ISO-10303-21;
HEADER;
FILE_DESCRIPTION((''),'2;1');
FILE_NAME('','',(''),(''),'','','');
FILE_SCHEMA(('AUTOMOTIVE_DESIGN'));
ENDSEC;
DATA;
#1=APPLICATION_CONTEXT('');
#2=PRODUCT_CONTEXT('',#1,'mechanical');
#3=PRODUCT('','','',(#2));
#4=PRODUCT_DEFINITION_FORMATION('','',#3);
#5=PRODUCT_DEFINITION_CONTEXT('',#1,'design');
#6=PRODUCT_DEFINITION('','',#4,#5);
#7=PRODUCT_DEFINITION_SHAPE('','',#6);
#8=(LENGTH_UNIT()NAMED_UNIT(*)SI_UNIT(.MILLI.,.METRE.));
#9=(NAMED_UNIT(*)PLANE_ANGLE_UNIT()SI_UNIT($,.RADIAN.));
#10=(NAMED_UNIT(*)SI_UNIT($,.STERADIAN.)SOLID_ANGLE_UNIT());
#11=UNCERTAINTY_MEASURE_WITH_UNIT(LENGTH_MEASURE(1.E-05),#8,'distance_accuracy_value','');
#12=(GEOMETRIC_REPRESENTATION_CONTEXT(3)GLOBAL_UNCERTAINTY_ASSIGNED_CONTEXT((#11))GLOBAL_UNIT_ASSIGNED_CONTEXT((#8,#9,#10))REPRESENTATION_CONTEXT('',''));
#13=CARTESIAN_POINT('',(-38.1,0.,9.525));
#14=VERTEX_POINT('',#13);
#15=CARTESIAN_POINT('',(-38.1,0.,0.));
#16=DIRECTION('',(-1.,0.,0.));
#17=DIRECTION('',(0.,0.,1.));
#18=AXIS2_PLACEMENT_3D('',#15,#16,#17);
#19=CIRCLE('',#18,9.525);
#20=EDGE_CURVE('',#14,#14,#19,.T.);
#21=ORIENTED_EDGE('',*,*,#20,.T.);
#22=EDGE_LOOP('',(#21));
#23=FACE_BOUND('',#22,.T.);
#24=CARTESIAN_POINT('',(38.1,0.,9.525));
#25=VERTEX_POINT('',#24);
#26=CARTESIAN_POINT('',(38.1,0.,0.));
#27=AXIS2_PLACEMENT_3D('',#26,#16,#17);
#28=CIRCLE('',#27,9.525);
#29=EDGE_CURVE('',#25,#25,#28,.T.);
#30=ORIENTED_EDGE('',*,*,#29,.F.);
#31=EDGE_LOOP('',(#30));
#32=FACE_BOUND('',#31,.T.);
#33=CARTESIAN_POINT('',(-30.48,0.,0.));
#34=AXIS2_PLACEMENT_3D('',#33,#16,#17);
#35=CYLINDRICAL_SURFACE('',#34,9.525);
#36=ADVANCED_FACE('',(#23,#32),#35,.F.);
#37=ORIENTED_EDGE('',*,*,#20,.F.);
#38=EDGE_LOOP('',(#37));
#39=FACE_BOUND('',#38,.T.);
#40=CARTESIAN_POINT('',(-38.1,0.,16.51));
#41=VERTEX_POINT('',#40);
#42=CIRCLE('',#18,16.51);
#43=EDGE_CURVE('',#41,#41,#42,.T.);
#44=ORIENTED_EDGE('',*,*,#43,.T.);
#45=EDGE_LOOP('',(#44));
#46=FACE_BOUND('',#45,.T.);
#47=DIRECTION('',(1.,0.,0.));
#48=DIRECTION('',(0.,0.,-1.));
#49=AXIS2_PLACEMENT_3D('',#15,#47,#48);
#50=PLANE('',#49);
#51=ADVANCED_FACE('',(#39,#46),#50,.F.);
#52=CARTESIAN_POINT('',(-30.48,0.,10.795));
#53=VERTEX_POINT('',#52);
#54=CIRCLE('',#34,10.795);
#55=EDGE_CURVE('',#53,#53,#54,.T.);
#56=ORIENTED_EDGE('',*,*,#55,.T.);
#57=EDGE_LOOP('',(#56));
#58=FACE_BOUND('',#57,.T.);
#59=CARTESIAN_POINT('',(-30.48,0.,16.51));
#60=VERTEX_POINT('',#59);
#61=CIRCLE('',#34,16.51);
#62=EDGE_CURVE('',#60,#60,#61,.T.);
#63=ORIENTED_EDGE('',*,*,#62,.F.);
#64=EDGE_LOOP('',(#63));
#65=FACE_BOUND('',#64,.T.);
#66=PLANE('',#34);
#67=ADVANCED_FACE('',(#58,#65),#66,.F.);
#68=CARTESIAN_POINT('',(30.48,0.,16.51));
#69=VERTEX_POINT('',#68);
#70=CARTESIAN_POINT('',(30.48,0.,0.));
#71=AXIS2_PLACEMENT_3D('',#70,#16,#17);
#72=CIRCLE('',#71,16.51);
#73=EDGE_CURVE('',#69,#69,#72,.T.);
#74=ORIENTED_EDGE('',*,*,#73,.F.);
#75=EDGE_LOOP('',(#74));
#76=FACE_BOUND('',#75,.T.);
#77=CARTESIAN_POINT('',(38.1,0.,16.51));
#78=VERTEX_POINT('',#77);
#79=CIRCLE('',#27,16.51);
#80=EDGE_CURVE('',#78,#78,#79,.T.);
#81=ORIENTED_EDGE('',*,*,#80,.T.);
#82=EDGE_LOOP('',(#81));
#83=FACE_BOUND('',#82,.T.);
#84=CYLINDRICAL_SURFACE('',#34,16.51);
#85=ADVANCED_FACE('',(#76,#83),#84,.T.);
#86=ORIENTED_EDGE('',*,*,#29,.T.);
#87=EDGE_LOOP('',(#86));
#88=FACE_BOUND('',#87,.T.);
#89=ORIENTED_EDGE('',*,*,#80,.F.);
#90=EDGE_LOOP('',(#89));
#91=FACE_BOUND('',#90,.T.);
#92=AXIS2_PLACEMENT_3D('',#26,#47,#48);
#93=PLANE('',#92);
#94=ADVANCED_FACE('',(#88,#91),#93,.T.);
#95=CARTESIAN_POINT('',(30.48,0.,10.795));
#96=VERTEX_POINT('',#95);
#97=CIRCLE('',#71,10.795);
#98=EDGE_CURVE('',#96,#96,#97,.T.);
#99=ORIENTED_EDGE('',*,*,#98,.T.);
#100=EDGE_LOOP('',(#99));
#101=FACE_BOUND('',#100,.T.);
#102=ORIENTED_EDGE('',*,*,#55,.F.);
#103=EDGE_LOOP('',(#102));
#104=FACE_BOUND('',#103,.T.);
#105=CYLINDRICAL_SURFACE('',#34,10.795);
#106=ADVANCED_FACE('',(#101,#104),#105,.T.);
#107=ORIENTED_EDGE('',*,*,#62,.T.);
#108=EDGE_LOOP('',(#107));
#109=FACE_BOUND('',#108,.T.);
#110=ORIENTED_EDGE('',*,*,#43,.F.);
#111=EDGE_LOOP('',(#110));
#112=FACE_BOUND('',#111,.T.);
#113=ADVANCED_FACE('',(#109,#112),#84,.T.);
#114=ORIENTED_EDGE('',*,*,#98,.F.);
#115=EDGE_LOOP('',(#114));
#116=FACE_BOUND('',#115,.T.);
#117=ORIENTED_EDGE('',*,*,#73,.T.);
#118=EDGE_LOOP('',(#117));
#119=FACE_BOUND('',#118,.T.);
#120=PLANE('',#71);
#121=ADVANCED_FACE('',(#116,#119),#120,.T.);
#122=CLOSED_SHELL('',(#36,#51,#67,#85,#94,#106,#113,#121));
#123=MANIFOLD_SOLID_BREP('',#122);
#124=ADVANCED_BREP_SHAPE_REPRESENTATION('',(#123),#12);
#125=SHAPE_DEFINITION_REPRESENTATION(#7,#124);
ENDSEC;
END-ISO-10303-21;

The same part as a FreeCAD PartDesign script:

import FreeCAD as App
import Part
import Sketcher

V = App.Vector
Q = App.Units.Quantity

doc = App.newDocument("Part")
body = doc.addObject("PartDesign::Body", "Body")

# Sketch on XY plane
sketch1 = doc.addObject("Sketcher::SketchObject", "Sketch")
body.addObject(sketch1)
sketch1.AttachmentSupport = (doc.XY_Plane, [""])
sketch1.MapMode = "FlatFace"
sketch1.addGeometry([
    Part.LineSegment(V(30, 11, 0), V(-30, 11, 0)),  # 0
    Part.LineSegment(V(-30, 11, 0), V(-30, 17, 0)),  # 1
    Part.LineSegment(V(-30, 17, 0), V(-38, 17, 0)),  # 2
    Part.LineSegment(V(-38, 17, 0), V(-38, 10, 0)),  # 3
    Part.LineSegment(V(-38, 10, 0), V(38, 10, 0)),  # 4
    Part.LineSegment(V(38, 10, 0), V(38, 17, 0)),  # 5
    Part.LineSegment(V(38, 17, 0), V(30, 17, 0)),  # 6
    Part.LineSegment(V(30, 17, 0), V(30, 11, 0)),  # 7
], False)
sketch1.addConstraint([
    Sketcher.Constraint("Coincident", 0, 2, 1, 1),
    Sketcher.Constraint("Coincident", 1, 2, 2, 1),
    Sketcher.Constraint("Coincident", 2, 2, 3, 1),
    Sketcher.Constraint("Coincident", 3, 2, 4, 1),
    Sketcher.Constraint("Coincident", 4, 2, 5, 1),
    Sketcher.Constraint("Coincident", 5, 2, 6, 1),
    Sketcher.Constraint("Coincident", 6, 2, 7, 1),
    Sketcher.Constraint("Coincident", 7, 2, 0, 1),
    Sketcher.Constraint("Horizontal", 0),
    Sketcher.Constraint("Vertical", 1),
    Sketcher.Constraint("Horizontal", 2),
    Sketcher.Constraint("Vertical", 3),
    Sketcher.Constraint("Horizontal", 4),
    Sketcher.Constraint("Vertical", 5),
    Sketcher.Constraint("Horizontal", 6),
    Sketcher.Constraint("Vertical", 7),
    Sketcher.Constraint("Symmetric", 2, 2, 5, 2, -2),
    Sketcher.Constraint("Equal", 2, 6),
    Sketcher.Constraint("DistanceX", 4, 1, 4, 2, Q("3 in")),
    Sketcher.Constraint("DistanceX", 0, 2, 0, 1, Q("2.4 in")),
    Sketcher.Constraint("DistanceY", 1, 1, 1, 2, Q("0.225 in")),
    Sketcher.Constraint("DistanceY", 3, 2, 3, 1, Q("0.275 in")),
    Sketcher.Constraint("DistanceY", -1, 1, 1, 2, Q("0.65 in")),
])
revolution = doc.addObject("PartDesign::Revolution", "Revolution")
body.addObject(revolution)
revolution.Profile = sketch1
revolution.ReferenceAxis = (sketch1, ["H_Axis"])
revolution.Angle = 360

doc.recompute()
